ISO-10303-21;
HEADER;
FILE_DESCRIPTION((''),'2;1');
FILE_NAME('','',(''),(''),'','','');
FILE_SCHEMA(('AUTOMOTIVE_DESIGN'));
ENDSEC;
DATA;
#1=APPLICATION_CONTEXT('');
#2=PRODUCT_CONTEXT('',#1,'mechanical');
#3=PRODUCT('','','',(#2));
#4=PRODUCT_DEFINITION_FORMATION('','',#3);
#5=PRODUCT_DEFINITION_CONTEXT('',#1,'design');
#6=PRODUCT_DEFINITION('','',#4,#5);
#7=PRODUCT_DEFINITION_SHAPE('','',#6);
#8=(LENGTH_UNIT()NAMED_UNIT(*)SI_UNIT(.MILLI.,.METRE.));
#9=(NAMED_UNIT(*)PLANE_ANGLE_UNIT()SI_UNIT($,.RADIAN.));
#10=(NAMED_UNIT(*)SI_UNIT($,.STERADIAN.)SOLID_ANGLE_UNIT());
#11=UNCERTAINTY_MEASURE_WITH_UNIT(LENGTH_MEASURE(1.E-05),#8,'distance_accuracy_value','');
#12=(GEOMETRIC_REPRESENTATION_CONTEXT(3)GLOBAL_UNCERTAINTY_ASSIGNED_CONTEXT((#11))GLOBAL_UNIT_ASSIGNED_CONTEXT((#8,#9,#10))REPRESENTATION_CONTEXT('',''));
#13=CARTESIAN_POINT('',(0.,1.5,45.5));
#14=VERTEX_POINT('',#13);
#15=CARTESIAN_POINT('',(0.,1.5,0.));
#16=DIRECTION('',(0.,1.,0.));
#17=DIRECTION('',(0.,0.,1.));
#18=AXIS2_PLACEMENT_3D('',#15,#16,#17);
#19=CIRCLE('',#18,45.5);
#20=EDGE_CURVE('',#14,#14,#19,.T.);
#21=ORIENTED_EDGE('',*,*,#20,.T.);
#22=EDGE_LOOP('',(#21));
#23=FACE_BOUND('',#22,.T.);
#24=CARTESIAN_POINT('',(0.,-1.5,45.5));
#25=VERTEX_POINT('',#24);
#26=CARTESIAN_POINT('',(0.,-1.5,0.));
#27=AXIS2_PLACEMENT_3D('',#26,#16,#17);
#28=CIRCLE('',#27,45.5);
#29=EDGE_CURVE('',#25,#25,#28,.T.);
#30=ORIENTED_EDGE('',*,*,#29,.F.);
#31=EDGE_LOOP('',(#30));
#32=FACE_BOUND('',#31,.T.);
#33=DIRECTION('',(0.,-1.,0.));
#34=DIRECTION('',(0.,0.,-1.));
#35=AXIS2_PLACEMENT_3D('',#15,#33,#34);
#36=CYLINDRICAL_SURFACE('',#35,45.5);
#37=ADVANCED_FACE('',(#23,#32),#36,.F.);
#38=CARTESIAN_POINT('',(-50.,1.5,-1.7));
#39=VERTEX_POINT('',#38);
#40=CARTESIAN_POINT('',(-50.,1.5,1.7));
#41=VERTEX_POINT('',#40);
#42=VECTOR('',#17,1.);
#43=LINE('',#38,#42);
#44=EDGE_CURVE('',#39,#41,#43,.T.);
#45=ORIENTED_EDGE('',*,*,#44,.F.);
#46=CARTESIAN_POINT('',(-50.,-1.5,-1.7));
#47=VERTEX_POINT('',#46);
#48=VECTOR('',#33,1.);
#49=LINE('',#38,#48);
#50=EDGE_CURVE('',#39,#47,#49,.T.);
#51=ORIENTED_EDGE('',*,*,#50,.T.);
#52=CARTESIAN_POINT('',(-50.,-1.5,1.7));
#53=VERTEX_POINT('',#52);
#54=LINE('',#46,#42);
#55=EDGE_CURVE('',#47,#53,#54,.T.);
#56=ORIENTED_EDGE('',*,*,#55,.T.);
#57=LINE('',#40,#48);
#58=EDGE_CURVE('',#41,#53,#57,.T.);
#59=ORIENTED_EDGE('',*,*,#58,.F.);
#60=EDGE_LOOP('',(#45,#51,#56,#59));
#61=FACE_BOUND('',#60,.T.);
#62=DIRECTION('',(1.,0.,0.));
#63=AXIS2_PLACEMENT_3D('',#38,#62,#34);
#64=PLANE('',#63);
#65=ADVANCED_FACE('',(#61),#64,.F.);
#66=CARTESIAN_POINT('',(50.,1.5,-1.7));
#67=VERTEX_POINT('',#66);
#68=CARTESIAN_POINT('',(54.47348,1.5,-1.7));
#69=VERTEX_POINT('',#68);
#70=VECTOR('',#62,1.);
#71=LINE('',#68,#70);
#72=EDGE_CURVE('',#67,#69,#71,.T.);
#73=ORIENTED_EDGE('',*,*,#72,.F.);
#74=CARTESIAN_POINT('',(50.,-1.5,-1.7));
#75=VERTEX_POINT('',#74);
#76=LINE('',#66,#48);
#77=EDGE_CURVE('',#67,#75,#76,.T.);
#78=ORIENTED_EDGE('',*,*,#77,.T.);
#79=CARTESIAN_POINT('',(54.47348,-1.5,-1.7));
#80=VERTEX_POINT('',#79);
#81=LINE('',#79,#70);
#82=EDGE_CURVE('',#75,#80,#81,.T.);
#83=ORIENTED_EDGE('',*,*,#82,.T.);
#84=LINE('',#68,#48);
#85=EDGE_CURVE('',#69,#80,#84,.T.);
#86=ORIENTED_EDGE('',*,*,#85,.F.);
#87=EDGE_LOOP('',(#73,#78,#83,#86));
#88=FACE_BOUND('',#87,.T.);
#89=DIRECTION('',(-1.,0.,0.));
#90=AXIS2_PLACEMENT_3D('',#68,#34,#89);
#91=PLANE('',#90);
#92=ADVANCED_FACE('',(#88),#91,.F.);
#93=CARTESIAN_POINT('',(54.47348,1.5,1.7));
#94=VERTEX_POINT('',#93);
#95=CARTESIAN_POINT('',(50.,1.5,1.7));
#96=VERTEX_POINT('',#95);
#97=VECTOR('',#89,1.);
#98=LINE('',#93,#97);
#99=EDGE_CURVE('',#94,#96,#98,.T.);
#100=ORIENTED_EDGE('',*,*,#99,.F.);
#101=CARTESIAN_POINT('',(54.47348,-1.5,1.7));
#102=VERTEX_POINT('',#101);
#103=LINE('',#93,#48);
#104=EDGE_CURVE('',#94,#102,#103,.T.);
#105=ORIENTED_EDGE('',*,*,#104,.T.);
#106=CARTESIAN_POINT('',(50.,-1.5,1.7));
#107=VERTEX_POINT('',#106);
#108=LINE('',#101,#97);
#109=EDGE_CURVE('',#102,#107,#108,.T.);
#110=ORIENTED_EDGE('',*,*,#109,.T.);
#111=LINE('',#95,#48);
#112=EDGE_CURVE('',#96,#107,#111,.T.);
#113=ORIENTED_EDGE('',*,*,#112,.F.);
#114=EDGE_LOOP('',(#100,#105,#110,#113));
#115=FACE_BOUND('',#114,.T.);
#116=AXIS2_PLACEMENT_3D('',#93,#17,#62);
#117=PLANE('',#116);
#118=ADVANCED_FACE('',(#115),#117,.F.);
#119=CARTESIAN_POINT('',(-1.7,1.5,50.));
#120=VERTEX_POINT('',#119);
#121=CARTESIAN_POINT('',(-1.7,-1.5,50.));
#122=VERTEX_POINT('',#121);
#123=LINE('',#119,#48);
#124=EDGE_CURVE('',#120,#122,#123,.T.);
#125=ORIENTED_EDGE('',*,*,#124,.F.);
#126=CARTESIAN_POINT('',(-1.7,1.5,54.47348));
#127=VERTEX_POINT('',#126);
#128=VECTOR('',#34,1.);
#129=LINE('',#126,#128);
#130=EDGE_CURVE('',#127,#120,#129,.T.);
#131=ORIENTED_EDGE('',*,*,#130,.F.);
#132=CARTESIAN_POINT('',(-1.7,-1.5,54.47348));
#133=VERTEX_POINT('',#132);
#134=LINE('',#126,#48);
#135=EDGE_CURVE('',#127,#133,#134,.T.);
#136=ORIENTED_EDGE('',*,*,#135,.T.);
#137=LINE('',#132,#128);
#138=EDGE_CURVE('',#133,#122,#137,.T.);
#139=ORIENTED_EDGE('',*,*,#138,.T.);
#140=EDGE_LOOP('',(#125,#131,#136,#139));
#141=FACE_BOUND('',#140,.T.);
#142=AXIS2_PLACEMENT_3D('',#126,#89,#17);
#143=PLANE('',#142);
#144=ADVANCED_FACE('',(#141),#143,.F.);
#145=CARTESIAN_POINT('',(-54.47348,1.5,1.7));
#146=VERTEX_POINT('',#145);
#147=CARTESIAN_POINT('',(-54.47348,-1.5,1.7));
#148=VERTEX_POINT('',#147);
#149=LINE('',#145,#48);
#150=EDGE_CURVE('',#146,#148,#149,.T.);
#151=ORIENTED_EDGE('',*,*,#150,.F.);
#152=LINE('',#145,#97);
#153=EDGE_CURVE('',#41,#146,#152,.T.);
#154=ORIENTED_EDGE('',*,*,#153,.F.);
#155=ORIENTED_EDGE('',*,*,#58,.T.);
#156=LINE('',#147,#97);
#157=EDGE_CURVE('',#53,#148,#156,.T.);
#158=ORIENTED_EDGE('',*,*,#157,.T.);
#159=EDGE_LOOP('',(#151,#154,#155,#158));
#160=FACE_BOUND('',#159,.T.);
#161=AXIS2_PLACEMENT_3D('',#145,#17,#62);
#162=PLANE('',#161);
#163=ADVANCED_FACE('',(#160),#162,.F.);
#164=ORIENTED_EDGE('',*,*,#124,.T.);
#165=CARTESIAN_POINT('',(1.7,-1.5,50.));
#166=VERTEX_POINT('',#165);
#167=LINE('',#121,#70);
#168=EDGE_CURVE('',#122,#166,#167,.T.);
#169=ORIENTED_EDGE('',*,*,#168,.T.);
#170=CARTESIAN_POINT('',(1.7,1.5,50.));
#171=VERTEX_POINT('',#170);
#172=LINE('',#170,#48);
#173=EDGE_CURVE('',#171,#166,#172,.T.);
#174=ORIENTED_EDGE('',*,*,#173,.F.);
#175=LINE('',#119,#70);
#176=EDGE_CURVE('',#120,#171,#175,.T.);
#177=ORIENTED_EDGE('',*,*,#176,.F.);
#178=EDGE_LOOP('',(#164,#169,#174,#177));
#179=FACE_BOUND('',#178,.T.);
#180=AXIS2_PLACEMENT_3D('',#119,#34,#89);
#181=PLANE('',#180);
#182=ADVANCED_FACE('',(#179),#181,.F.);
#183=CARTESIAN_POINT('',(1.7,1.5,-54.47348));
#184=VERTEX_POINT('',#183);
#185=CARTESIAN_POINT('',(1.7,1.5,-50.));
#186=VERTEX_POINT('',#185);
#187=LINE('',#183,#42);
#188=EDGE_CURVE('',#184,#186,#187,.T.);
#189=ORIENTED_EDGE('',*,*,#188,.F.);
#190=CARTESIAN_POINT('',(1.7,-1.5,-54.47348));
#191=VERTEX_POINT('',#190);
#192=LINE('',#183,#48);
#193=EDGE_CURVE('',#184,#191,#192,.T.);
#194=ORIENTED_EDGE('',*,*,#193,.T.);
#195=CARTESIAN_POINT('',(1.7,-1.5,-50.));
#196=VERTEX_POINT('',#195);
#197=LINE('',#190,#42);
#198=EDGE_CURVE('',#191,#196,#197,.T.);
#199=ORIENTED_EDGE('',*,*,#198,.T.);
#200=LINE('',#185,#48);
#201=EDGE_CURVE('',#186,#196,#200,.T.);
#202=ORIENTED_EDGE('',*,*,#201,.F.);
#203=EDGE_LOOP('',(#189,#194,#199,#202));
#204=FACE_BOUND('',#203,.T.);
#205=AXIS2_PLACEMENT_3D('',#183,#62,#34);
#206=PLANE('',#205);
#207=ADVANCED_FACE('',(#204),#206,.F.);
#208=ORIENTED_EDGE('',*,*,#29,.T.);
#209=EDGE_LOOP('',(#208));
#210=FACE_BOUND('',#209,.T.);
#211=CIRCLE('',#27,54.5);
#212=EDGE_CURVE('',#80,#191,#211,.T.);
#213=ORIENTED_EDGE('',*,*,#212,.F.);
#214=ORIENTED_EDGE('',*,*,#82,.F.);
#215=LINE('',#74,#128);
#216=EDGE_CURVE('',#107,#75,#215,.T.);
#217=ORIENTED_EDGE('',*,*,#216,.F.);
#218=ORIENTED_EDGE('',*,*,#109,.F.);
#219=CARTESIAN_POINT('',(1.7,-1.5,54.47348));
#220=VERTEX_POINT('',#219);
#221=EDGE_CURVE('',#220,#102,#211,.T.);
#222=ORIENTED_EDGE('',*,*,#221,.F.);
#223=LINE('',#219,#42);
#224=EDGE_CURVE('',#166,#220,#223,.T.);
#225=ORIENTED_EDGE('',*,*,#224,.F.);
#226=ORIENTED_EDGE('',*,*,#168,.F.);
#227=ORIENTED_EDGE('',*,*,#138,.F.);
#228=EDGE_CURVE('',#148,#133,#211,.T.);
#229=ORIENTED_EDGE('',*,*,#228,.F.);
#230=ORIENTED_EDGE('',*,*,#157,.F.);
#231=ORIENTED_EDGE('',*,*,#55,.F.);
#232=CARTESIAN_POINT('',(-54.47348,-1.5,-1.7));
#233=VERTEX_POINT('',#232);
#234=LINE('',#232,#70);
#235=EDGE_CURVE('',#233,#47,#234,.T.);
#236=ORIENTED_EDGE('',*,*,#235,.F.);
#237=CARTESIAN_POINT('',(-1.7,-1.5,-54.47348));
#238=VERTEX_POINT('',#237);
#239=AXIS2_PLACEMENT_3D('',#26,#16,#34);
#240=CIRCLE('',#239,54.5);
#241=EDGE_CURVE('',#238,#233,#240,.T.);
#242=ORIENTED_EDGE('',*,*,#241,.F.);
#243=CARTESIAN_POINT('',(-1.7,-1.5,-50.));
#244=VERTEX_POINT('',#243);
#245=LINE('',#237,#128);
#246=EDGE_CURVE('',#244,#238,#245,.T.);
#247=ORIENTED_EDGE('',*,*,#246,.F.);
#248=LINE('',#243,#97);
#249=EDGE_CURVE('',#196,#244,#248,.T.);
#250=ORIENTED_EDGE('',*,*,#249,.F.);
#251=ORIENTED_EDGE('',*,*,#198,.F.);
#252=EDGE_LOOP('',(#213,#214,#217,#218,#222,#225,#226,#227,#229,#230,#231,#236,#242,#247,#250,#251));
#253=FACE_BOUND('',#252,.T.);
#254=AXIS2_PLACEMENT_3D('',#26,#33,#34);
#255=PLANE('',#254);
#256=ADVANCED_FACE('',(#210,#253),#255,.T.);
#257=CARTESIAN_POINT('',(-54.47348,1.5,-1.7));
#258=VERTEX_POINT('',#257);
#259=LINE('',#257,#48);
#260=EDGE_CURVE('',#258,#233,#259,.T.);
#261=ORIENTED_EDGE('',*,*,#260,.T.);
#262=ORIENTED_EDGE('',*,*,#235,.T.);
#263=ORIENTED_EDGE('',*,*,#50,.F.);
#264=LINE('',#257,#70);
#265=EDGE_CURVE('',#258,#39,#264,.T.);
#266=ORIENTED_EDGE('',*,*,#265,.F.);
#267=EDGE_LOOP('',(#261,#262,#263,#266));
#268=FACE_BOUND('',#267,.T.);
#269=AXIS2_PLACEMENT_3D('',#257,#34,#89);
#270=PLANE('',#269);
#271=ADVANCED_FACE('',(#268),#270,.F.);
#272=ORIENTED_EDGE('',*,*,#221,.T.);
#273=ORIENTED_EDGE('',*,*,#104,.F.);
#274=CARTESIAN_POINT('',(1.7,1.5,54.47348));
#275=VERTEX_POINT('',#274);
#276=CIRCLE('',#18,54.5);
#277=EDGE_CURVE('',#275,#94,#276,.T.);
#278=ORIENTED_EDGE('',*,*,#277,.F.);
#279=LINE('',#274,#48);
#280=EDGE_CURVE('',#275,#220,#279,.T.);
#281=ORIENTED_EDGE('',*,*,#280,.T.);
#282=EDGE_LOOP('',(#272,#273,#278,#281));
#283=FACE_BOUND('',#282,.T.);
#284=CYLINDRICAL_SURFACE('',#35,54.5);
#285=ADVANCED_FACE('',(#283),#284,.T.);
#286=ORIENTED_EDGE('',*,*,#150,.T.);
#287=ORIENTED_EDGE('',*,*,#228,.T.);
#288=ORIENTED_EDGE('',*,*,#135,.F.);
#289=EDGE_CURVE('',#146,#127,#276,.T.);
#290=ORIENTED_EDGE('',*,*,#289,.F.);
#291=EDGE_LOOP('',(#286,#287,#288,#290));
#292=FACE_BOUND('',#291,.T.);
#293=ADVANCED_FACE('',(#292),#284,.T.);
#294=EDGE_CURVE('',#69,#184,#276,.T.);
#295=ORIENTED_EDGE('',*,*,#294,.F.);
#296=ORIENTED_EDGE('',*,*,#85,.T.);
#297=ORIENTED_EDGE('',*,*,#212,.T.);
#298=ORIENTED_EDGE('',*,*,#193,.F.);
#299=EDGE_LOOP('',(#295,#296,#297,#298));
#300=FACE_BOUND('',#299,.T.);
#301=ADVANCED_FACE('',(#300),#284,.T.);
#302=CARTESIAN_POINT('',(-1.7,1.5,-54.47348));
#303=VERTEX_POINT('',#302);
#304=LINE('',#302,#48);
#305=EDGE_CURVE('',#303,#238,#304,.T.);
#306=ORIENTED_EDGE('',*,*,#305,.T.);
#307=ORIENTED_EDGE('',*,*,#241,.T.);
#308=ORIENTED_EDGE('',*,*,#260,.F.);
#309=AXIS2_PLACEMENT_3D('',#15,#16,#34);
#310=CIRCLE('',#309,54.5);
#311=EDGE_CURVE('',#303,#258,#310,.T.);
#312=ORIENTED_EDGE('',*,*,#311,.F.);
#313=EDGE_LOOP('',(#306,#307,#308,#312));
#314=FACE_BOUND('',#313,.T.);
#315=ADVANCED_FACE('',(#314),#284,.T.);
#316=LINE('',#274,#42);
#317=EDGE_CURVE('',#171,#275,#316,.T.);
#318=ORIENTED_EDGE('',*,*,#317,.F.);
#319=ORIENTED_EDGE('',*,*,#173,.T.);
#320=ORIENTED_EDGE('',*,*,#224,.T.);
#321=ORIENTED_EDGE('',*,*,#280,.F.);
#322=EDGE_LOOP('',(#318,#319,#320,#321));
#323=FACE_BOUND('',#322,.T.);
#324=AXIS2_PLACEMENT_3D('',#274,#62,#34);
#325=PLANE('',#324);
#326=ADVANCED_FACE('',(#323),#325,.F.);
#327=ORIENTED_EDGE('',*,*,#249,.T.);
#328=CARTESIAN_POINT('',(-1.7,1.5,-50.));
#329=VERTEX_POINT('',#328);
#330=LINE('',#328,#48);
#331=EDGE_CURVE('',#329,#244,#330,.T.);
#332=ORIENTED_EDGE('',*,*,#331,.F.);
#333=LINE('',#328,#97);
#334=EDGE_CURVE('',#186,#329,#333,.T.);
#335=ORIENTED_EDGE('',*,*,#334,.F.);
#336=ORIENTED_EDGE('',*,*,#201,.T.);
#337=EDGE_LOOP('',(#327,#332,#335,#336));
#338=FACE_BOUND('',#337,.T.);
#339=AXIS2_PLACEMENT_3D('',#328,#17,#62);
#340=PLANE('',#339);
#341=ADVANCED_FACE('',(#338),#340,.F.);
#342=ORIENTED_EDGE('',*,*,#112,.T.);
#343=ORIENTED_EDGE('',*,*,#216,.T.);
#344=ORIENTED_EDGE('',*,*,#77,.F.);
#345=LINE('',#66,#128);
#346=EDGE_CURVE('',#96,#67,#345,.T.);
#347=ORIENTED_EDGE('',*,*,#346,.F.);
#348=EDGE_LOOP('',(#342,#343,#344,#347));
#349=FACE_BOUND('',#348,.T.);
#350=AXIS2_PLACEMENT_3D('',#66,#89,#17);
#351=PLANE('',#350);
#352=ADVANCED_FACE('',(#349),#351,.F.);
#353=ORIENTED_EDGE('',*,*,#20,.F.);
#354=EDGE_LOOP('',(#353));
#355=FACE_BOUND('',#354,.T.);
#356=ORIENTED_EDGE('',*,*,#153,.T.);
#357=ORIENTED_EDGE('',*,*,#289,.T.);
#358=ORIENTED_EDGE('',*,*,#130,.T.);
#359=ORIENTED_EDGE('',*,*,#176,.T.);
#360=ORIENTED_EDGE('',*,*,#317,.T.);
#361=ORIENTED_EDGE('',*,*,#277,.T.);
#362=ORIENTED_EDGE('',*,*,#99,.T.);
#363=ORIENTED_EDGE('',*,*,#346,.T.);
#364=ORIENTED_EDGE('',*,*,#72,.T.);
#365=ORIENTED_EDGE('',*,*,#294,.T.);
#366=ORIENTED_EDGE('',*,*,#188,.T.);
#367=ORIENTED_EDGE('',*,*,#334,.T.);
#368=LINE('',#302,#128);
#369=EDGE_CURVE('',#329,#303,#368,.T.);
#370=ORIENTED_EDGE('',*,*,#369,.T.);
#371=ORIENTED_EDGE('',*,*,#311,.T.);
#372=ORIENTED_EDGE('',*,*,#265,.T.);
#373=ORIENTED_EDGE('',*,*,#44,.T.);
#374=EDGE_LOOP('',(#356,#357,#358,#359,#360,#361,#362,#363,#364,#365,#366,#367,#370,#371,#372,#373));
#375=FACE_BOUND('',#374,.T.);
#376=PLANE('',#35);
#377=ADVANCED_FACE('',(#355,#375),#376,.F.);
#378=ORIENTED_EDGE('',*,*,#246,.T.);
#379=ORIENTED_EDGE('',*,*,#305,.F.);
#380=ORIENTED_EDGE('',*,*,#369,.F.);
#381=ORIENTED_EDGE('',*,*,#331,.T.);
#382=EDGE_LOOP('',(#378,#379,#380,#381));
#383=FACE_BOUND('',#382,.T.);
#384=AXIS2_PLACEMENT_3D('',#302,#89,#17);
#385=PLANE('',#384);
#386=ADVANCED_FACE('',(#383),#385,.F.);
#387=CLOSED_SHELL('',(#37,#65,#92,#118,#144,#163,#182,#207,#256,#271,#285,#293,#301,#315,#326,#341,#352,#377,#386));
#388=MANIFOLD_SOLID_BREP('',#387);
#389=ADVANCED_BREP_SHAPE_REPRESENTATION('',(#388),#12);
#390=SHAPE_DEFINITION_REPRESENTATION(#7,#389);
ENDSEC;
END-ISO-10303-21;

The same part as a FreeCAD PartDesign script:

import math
import FreeCAD as App
import Part
import Sketcher

V = App.Vector
Q = App.Units.Quantity

doc = App.newDocument("Part")
body = doc.addObject("PartDesign::Body", "Body")

# Sketch on XZ plane
sketch1 = body.newObject("Sketcher::SketchObject", "Sketch")
sketch1.AttachmentSupport = (doc.getObject("XZ_Plane"), [""])
sketch1.MapMode = "FlatFace"
sketch1.addGeometry(Part.LineSegment(V(-1.7, -50, 0), V(-1.7, -54.5, 0)), False)
sketch1.addGeometry(Part.ArcOfCircle(Part.Circle(V(0, 0, 0), V(0, 0, 1), 54.5), math.radians(-178), math.radians(-92)), False)
sketch1.addGeometry(Part.LineSegment(V(-54.5, -1.7, 0), V(-50, -1.7, 0)), False)
sketch1.addGeometry(Part.LineSegment(V(-50, -1.7, 0), V(-50, 1.7, 0)), False)
sketch1.addGeometry(Part.LineSegment(V(-50, 1.7, 0), V(-54.5, 1.7, 0)), False)
sketch1.addGeometry(Part.ArcOfCircle(Part.Circle(V(0, 0, 0), V(0, 0, 1), 54.5), math.radians(92), math.radians(178)), False)
sketch1.addGeometry(Part.LineSegment(V(-1.7, 54.5, 0), V(-1.7, 50, 0)), False)
sketch1.addGeometry(Part.LineSegment(V(-1.7, 50, 0), V(1.7, 50, 0)), False)
sketch1.addGeometry(Part.LineSegment(V(1.7, 50, 0), V(1.7, 54.5, 0)), False)
sketch1.addGeometry(Part.ArcOfCircle(Part.Circle(V(0, 0, 0), V(0, 0, 1), 54.5), math.radians(2), math.radians(88)), False)
sketch1.addGeometry(Part.LineSegment(V(54.5, 1.7, 0), V(50, 1.7, 0)), False)
sketch1.addGeometry(Part.LineSegment(V(50, 1.7, 0), V(50, -1.7, 0)), False)
sketch1.addGeometry(Part.LineSegment(V(50, -1.7, 0), V(54.5, -1.7, 0)), False)
sketch1.addGeometry(Part.ArcOfCircle(Part.Circle(V(0, 0, 0), V(0, 0, 1), 54.5), math.radians(-88), math.radians(-2)), False)
sketch1.addGeometry(Part.LineSegment(V(1.7, -54.5, 0), V(1.7, -50, 0)), False)
sketch1.addGeometry(Part.LineSegment(V(1.7, -50, 0), V(-1.7, -50, 0)), False)
sketch1.addGeometry(Part.Circle(V(0, 0, 0), V(0, 0, 1), 45.5), False)
sketch1.addConstraint(Sketcher.Constraint("Coincident", 0, 2, 1, 2))
sketch1.addConstraint(Sketcher.Constraint("Coincident", 1, 1, 2, 1))
sketch1.addConstraint(Sketcher.Constraint("Coincident", 2, 2, 3, 1))
sketch1.addConstraint(Sketcher.Constraint("Coincident", 3, 2, 4, 1))
sketch1.addConstraint(Sketcher.Constraint("Coincident", 4, 2, 5, 2))
sketch1.addConstraint(Sketcher.Constraint("Coincident", 5, 1, 6, 1))
sketch1.addConstraint(Sketcher.Constraint("Coincident", 6, 2, 7, 1))
sketch1.addConstraint(Sketcher.Constraint("Coincident", 7, 2, 8, 1))
sketch1.addConstraint(Sketcher.Constraint("Coincident", 8, 2, 9, 2))
sketch1.addConstraint(Sketcher.Constraint("Coincident", 9, 1, 10, 1))
sketch1.addConstraint(Sketcher.Constraint("Coincident", 10, 2, 11, 1))
sketch1.addConstraint(Sketcher.Constraint("Coincident", 11, 2, 12, 1))
sketch1.addConstraint(Sketcher.Constraint("Coincident", 12, 2, 13, 2))
sketch1.addConstraint(Sketcher.Constraint("Coincident", 13, 1, 14, 1))
sketch1.addConstraint(Sketcher.Constraint("Coincident", 14, 2, 15, 1))
sketch1.addConstraint(Sketcher.Constraint("Coincident", 15, 2, 0, 1))
sketch1.addConstraint(Sketcher.Constraint("Vertical", 0))
sketch1.addConstraint(Sketcher.Constraint("Horizontal", 2))
sketch1.addConstraint(Sketcher.Constraint("Vertical", 3))
sketch1.addConstraint(Sketcher.Constraint("Horizontal", 4))
sketch1.addConstraint(Sketcher.Constraint("Vertical", 6))
sketch1.addConstraint(Sketcher.Constraint("Horizontal", 7))
sketch1.addConstraint(Sketcher.Constraint("Vertical", 8))
sketch1.addConstraint(Sketcher.Constraint("Horizontal", 10))
sketch1.addConstraint(Sketcher.Constraint("Vertical", 11))
sketch1.addConstraint(Sketcher.Constraint("Horizontal", 12))
sketch1.addConstraint(Sketcher.Constraint("Vertical", 14))
sketch1.addConstraint(Sketcher.Constraint("Horizontal", 15))
sketch1.addConstraint(Sketcher.Constraint("Coincident", 1, 3, -1, 1))
sketch1.addConstraint(Sketcher.Constraint("Coincident", 5, 3, -1, 1))
sketch1.addConstraint(Sketcher.Constraint("Coincident", 9, 3, -1, 1))
sketch1.addConstraint(Sketcher.Constraint("Coincident", 13, 3, -1, 1))
sketch1.addConstraint(Sketcher.Constraint("Coincident", 16, 3, -1, 1))
sketch1.addConstraint(Sketcher.Constraint("Equal", 1, 5))
sketch1.addConstraint(Sketcher.Constraint("Equal", 5, 9))
sketch1.addConstraint(Sketcher.Constraint("Equal", 9, 13))
sketch1.addConstraint(Sketcher.Constraint("Symmetric", 2, 2, 10, 2, -1, 1))
sketch1.addConstraint(Sketcher.Constraint("Symmetric", 6, 2, 14, 2, -1, 1))
sketch1.addConstraint(Sketcher.Constraint("Horizontal", 5, 1, 8, 2))
sketch1.addConstraint(Sketcher.Constraint("Horizontal", 4, 2, 9, 1))
sketch1.addConstraint(Sketcher.Constraint("Horizontal", 2, 2, 11, 2))
sketch1.addConstraint(Sketcher.Constraint("Horizontal", 0, 2, 13, 1))
sketch1.addConstraint(Sketcher.Constraint("Equal", 12, 0))
sketch1.addConstraint(Sketcher.Constraint("Equal", 15, 3))
sketch1.addConstraint(Sketcher.Constraint("Diameter", 16, Q("91 mm")))
sketch1.addConstraint(Sketcher.Constraint("Radius", 1, Q("54.5 mm")))
sketch1.addConstraint(Sketcher.Constraint("DistanceX", 7, 1, 7, 2, Q("3.4 mm")))
sketch1.addConstraint(Sketcher.Constraint("DistanceX", 2, 2, -1, 1, Q("50 mm")))
pad1 = body.newObject("PartDesign::Pad", "Pad")
pad1.Profile = sketch1
pad1.Length = 3
pad1.Midplane = True

doc.recompute()
